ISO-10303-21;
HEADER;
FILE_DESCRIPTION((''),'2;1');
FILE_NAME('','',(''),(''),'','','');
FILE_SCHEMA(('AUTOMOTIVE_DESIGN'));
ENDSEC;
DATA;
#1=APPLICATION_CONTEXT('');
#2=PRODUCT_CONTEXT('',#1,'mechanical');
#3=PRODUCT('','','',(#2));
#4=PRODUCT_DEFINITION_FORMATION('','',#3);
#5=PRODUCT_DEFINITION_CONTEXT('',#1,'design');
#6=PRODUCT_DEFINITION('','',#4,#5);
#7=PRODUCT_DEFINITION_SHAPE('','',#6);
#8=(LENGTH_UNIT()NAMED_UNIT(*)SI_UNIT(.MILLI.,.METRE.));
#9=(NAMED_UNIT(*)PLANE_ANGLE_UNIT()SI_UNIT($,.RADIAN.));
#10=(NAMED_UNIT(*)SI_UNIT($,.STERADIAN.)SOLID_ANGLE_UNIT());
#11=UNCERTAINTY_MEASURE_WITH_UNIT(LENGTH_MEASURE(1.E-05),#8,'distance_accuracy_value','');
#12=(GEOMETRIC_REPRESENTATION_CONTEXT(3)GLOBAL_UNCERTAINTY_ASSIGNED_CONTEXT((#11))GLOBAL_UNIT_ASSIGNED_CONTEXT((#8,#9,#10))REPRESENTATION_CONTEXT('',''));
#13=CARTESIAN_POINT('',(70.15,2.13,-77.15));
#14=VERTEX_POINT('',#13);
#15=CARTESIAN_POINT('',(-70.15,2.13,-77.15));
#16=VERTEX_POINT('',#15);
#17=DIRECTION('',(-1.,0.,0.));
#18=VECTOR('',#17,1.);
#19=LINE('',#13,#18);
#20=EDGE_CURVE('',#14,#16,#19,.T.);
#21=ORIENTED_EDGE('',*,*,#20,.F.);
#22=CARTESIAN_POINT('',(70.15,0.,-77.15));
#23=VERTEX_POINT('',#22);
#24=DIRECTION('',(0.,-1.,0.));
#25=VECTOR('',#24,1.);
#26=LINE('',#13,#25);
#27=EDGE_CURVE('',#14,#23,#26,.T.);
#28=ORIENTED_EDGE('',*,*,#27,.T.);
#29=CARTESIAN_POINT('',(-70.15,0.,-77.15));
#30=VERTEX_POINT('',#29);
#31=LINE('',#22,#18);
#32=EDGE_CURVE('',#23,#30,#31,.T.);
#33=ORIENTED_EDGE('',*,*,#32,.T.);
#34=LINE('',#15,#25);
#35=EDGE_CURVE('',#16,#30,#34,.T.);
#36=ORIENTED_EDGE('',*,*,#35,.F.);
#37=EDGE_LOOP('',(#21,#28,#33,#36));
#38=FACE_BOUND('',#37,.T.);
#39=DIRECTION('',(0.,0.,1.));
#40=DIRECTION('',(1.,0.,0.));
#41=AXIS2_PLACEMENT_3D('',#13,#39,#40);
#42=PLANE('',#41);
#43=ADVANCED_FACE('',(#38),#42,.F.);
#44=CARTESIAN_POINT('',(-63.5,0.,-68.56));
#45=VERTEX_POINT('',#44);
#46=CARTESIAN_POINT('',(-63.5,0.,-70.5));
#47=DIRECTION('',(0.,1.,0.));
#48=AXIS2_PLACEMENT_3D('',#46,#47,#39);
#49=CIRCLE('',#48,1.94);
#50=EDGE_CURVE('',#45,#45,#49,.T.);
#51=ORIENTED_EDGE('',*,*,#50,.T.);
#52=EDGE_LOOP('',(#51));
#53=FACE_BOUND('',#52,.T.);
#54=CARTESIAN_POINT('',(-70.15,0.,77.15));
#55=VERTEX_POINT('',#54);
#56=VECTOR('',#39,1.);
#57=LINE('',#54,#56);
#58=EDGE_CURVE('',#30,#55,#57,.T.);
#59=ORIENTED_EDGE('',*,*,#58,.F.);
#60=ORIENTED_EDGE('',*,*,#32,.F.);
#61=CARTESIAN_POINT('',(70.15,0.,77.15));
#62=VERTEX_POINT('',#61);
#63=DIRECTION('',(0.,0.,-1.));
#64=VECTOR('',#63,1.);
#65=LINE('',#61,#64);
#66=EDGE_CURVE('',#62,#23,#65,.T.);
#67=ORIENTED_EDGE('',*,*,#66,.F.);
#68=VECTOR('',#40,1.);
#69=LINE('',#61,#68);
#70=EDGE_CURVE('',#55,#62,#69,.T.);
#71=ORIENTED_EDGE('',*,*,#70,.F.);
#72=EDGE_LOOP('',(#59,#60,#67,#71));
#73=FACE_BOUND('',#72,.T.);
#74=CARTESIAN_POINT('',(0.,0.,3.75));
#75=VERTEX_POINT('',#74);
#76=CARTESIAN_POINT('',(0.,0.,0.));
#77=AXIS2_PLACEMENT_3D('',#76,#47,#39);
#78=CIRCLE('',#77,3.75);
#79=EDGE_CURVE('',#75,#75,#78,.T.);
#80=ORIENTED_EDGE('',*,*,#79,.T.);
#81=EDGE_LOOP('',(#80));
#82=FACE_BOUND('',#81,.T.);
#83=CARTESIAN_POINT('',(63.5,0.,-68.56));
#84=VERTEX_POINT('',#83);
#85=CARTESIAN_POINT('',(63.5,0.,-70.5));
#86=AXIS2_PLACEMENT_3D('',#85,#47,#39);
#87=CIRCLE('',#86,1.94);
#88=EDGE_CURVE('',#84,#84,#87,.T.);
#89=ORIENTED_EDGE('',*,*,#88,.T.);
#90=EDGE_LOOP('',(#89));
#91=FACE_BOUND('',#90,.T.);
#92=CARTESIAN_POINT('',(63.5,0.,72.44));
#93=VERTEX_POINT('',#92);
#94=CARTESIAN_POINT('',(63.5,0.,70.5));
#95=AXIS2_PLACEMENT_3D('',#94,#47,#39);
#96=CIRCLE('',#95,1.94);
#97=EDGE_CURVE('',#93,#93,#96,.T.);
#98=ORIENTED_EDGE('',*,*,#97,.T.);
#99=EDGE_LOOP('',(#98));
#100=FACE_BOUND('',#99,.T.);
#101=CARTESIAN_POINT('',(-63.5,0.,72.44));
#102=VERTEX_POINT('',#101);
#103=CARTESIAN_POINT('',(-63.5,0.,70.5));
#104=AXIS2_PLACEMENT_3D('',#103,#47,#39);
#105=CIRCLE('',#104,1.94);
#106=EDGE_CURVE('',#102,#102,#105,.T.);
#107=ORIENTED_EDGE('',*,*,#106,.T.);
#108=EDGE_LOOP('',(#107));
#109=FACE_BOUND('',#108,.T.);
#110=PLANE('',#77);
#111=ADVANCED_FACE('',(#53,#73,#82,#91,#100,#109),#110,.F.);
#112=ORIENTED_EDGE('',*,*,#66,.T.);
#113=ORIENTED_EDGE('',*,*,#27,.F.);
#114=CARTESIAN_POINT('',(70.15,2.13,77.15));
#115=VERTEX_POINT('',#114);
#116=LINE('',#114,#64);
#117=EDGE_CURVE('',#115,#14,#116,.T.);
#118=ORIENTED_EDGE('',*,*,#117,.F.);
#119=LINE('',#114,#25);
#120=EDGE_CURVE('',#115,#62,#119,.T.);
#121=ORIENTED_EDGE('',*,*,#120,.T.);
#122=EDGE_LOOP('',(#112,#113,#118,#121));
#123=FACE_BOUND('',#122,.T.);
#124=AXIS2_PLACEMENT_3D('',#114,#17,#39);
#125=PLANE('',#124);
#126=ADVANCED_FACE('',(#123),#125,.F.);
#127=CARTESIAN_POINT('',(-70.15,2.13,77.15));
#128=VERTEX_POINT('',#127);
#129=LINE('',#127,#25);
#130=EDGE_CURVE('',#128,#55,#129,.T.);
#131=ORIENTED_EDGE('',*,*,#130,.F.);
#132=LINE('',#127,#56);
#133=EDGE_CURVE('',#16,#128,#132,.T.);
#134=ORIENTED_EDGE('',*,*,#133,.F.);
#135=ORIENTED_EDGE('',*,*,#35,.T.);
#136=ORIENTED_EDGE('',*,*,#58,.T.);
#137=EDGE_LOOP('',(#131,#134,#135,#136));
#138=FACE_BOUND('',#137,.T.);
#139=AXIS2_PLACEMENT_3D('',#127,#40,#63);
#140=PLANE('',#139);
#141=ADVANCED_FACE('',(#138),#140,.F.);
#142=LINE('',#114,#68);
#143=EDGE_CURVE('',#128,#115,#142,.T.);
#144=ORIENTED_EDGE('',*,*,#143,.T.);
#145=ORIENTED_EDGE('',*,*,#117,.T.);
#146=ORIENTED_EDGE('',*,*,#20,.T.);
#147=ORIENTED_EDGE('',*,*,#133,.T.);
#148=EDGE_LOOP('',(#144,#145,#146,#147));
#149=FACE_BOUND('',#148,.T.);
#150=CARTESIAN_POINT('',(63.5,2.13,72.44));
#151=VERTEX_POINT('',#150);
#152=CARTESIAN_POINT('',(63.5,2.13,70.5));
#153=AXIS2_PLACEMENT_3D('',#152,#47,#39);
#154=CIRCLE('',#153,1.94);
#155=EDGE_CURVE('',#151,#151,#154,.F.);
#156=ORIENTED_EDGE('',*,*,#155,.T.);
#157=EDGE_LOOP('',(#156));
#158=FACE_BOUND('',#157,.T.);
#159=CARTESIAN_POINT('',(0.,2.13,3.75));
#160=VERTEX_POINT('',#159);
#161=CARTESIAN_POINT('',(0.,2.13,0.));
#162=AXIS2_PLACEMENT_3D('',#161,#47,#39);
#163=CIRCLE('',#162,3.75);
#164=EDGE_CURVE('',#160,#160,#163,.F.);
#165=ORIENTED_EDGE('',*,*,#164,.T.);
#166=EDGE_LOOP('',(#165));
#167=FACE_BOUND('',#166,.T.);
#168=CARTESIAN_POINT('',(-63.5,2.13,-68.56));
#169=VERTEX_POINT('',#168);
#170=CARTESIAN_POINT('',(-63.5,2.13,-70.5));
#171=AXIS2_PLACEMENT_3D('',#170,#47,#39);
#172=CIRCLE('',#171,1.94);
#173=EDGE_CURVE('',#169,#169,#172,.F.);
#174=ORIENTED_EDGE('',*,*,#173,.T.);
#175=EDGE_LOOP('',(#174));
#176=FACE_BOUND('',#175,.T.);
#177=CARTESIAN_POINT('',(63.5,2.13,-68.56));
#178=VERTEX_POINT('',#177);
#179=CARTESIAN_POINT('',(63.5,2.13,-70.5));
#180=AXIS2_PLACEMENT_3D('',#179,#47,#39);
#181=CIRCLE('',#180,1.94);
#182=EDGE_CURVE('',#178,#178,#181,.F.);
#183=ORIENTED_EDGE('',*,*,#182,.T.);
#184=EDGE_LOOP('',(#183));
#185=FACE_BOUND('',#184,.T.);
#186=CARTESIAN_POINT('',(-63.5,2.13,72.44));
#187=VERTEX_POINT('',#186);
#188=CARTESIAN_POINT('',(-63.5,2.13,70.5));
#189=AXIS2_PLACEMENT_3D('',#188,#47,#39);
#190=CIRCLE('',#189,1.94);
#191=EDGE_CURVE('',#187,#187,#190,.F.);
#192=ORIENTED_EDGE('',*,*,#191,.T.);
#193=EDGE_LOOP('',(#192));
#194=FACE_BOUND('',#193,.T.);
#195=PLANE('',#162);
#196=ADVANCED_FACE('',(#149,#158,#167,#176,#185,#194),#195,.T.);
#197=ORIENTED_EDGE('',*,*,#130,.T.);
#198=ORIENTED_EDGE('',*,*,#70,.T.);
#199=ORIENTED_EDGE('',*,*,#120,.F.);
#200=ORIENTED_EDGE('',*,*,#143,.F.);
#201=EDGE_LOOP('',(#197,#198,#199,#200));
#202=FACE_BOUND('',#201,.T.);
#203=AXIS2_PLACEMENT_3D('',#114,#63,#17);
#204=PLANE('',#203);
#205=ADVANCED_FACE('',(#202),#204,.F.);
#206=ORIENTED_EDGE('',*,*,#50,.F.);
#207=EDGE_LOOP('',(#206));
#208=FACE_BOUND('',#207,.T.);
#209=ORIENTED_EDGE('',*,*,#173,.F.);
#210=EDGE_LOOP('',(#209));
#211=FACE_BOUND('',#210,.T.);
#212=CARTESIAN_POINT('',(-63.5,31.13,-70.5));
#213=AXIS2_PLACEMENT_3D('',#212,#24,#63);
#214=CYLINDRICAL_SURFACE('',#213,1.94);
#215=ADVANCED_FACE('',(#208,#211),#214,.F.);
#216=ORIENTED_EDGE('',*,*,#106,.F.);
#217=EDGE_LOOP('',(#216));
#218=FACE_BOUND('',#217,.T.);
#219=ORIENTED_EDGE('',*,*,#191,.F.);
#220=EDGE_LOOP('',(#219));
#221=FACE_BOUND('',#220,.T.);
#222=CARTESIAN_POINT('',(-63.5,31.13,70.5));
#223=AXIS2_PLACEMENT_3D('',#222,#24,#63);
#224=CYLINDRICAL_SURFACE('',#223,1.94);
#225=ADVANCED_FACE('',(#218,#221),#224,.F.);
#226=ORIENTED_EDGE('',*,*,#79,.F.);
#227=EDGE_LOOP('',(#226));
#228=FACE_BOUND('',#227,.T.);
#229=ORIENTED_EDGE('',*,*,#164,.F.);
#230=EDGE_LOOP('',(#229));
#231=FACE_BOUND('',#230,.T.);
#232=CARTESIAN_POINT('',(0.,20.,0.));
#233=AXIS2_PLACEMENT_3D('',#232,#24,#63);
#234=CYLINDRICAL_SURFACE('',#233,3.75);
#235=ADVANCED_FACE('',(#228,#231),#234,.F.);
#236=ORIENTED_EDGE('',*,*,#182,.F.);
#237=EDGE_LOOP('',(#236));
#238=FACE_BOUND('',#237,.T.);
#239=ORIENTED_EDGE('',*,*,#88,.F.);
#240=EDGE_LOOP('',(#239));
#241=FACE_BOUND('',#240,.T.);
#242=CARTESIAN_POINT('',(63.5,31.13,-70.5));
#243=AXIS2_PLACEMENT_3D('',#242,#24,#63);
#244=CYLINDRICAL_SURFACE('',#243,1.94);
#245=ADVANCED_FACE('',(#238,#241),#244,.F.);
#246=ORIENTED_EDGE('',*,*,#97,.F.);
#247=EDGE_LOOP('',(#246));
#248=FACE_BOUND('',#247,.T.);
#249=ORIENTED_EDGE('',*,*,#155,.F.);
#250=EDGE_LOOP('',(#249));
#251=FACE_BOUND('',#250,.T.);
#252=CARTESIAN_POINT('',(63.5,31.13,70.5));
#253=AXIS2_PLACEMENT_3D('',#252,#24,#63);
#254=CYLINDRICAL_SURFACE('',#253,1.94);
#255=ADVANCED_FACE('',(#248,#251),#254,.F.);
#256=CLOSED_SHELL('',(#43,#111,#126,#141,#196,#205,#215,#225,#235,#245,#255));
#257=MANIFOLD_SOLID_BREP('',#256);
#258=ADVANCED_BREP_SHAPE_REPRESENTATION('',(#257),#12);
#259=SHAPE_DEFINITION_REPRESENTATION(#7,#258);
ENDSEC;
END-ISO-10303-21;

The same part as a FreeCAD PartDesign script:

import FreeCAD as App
import Part
import Sketcher

V = App.Vector
Q = App.Units.Quantity


def add_polygon(sketch, points):
    """Adds a closed chain of lines whose ends are joined by coincident constraints."""
    first, n = sketch.GeometryCount, len(points)
    for a, b in zip(points, points[1:] + points[:1]):
        sketch.addGeometry(Part.LineSegment(App.Vector(*a, 0), App.Vector(*b, 0)), False)
    for i in range(n):
        sketch.addConstraint(Sketcher.Constraint("Coincident", first + i, 2, first + (i + 1) % n, 1))

doc = App.newDocument("Part")
body = doc.addObject("PartDesign::Body", "Body")

# Sketch on XZ plane
sketch1 = body.newObject("Sketcher::SketchObject", "Sketch")
sketch1.AttachmentSupport = (doc.getObject("XZ_Plane"), [""])
sketch1.MapMode = "FlatFace"
add_polygon(sketch1, [(-70, -77), (-70, 77), (70, 77), (70, -77)])  # lines 0-3
sketch1.addConstraint(Sketcher.Constraint("Vertical", 0))
sketch1.addConstraint(Sketcher.Constraint("Horizontal", 1))
sketch1.addConstraint(Sketcher.Constraint("Vertical", 2))
sketch1.addConstraint(Sketcher.Constraint("Horizontal", 3))
sketch1.addConstraint(Sketcher.Constraint("Symmetric", 0, 2, 2, 2, -1, 1))
sketch1.addConstraint(Sketcher.Constraint("DistanceX", 1, 1, 1, 2, Q("140.3 mm")))
sketch1.addConstraint(Sketcher.Constraint("DistanceY", 0, 1, 0, 2, Q("154.3 mm")))
pad1 = body.newObject("PartDesign::Pad", "Pad")
pad1.Profile = sketch1
pad1.Length = 2.13
pad1.Reversed = True

# Sketch on XZ plane
sketch2 = body.newObject("Sketcher::SketchObject", "Sketch001")
sketch2.AttachmentSupport = (doc.getObject("XZ_Plane"), [""])
sketch2.MapMode = "FlatFace"
sketch2.addGeometry(Part.Circle(V(-63.5, 70.5, 0), V(0, 0, 1), 1.9), False)
sketch2.addGeometry(Part.Circle(V(63.5, 70.5, 0), V(0, 0, 1), 1.9), False)
sketch2.addGeometry(Part.Circle(V(-63.5, -70.5, 0), V(0, 0, 1), 1.9), False)
sketch2.addGeometry(Part.Circle(V(63.5, -70.5, 0), V(0, 0, 1), 1.9), False)
sketch2.addConstraint(Sketcher.Constraint("Equal", 0, 1))
sketch2.addConstraint(Sketcher.Constraint("Equal", 1, 2))
sketch2.addConstraint(Sketcher.Constraint("Equal", 2, 3))
sketch2.addConstraint(Sketcher.Constraint("Symmetric", 1, 3, 2, 3, -1, 1))
sketch2.addConstraint(Sketcher.Constraint("Symmetric", 0, 3, 3, 3, -1, 1))
sketch2.addConstraint(Sketcher.Constraint("Symmetric", 0, 3, 1, 3, -2))
sketch2.addConstraint(Sketcher.Constraint("Diameter", 0, Q("3.88 mm")))
sketch2.addConstraint(Sketcher.Constraint("DistanceX", 0, 3, 1, 3, Q("127 mm")))
sketch2.addConstraint(Sketcher.Constraint("DistanceY", 2, 3, 0, 3, Q("141 mm")))
pocket1 = body.newObject("PartDesign::Pocket", "Pocket")
pocket1.Profile = sketch2
pocket1.Length = 31.13

# Sketch on XZ plane
sketch3 = body.newObject("Sketcher::SketchObject", "Sketch002")
sketch3.AttachmentSupport = (doc.getObject("XZ_Plane"), [""])
sketch3.MapMode = "FlatFace"
sketch3.addGeometry(Part.Circle(V(0, 0, 0), V(0, 0, 1), 3.8), False)
sketch3.addConstraint(Sketcher.Constraint("Coincident", 0, 3, -1, 1))
sketch3.addConstraint(Sketcher.Constraint("Diameter", 0, Q("7.5 mm")))
pocket2 = body.newObject("PartDesign::Pocket", "Pocket001")
pocket2.Profile = sketch3
pocket2.Length = 20

doc.recompute()
